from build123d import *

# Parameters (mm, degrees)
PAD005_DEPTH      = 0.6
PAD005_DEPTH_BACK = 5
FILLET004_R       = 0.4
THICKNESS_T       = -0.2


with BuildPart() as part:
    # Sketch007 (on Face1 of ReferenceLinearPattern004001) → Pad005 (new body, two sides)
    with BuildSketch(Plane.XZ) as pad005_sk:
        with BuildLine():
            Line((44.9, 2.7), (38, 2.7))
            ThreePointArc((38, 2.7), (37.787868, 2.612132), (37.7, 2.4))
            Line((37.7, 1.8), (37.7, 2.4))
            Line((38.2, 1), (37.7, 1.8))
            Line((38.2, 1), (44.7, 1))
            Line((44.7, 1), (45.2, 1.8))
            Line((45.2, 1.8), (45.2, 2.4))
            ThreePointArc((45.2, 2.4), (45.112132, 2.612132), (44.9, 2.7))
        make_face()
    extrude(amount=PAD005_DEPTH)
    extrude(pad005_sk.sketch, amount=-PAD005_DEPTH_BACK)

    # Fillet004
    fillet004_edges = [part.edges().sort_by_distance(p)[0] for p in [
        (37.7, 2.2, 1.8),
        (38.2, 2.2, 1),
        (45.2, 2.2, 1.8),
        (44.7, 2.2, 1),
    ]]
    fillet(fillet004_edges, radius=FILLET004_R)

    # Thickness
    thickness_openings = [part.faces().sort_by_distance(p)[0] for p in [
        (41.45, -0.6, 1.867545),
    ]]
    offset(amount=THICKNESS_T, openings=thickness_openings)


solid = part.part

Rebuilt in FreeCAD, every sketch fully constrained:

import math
import FreeCAD as App
import Part
import Sketcher

V = App.Vector


def edges_at(feature, points):
    """Names of the edges that pass closest to the given points."""
    edges = feature.Shape.Edges
    near = lambda p: min(range(len(edges)), key=lambda i: edges[i].distToShape(Part.Vertex(*p))[0])
    return sorted({f"Edge{near(p) + 1}" for p in points})


def faces_at(feature, points):
    """Names of the faces that lie closest to the given points."""
    faces = feature.Shape.Faces
    near = lambda p: min(range(len(faces)), key=lambda i: faces[i].distToShape(Part.Vertex(*p))[0])
    return sorted({f"Face{near(p) + 1}" for p in points})

doc = App.newDocument("Part")
body = doc.addObject("PartDesign::Body", "Body")

# Sketch on XZ plane
sketch1 = doc.addObject("Sketcher::SketchObject", "Sketch")
body.addObject(sketch1)
sketch1.AttachmentSupport = (doc.XZ_Plane, [""])
sketch1.MapMode = "FlatFace"
sketch1.addGeometry(Part.LineSegment(V(44.9, 2.7, 0), V(38, 2.7, 0)), False)
sketch1.addGeometry(Part.ArcOfCircle(Part.Circle(V(38, 2.4, 0), V(0, 0, 1), 0.3), math.radians(90), math.radians(180)), False)
sketch1.addGeometry(Part.LineSegment(V(37.7, 2.4, 0), V(37.7, 1.8, 0)), False)
sketch1.addGeometry(Part.LineSegment(V(37.7, 1.8, 0), V(38.2, 1, 0)), False)
sketch1.addGeometry(Part.LineSegment(V(38.2, 1, 0), V(44.7, 1, 0)), False)
sketch1.addGeometry(Part.LineSegment(V(44.7, 1, 0), V(45.2, 1.8, 0)), False)
sketch1.addGeometry(Part.LineSegment(V(45.2, 1.8, 0), V(45.2, 2.4, 0)), False)
sketch1.addGeometry(Part.ArcOfCircle(Part.Circle(V(44.9, 2.4, 0), V(0, 0, 1), 0.3), math.radians(0), math.radians(90)), False)
sketch1.addConstraint(Sketcher.Constraint("Tangent", 0, 2, 1, 1))
sketch1.addConstraint(Sketcher.Constraint("Tangent", 1, 2, 2, 1))
sketch1.addConstraint(Sketcher.Constraint("Coincident", 2, 2, 3, 1))
sketch1.addConstraint(Sketcher.Constraint("Coincident", 3, 2, 4, 1))
sketch1.addConstraint(Sketcher.Constraint("Coincident", 4, 2, 5, 1))
sketch1.addConstraint(Sketcher.Constraint("Coincident", 5, 2, 6, 1))
sketch1.addConstraint(Sketcher.Constraint("Tangent", 6, 2, 7, 1))
sketch1.addConstraint(Sketcher.Constraint("Tangent", 7, 2, 0, 1))
sketch1.addConstraint(Sketcher.Constraint("Horizontal", 0))
sketch1.addConstraint(Sketcher.Constraint("Vertical", 2))
sketch1.addConstraint(Sketcher.Constraint("Horizontal", 4))
sketch1.addConstraint(Sketcher.Constraint("Vertical", 6))
sketch1.addConstraint(Sketcher.Constraint("Equal", 1, 7))
sketch1.addConstraint(Sketcher.Constraint("Horizontal", 2, 2, 5, 2))
sketch1.addConstraint(Sketcher.Constraint("Equal", 3, 5))
sketch1.addConstraint(Sketcher.Constraint("Radius", 1, 0.3))
sketch1.addConstraint(Sketcher.Constraint("DistanceX", 0, 2, 0, 1, 6.9))
sketch1.addConstraint(Sketcher.Constraint("DistanceX", 4, 1, 4, 2, 6.5))
sketch1.addConstraint(Sketcher.Constraint("DistanceY", 2, 2, 2, 1, 0.6))
sketch1.addConstraint(Sketcher.Constraint("DistanceX", -1, 1, 1, 3, 38.0))
sketch1.addConstraint(Sketcher.Constraint("DistanceY", -1, 1, 3, 2, 1.0))
sketch1.addConstraint(Sketcher.Constraint("DistanceY", -1, 1, 1, 3, 2.4))
pad1 = doc.addObject("PartDesign::Pad", "Pad")
body.addObject(pad1)
pad1.Profile = sketch1
pad1.Type = "TwoLengths"
pad1.Length = 0.6
pad1.Length2 = 5
doc.recompute()

fillet = doc.addObject("PartDesign::Fillet", "Fillet")
body.addObject(fillet)
fillet.Base = (pad1, edges_at(pad1, [
    (37.7, 2.2, 1.8),
    (38.2, 2.2, 1),
    (45.2, 2.2, 1.8),
    (44.7, 2.2, 1),
]))
fillet.Radius = 0.4
doc.recompute()

thickness = doc.addObject("PartDesign::Thickness", "Thickness")
body.addObject(thickness)
thickness.Base = (fillet, faces_at(fillet, [(41.45, -0.6, 1.85)]))
thickness.Value = 0.2
thickness.Reversed = True
thickness.Join = "Arc"

doc.recompute()
